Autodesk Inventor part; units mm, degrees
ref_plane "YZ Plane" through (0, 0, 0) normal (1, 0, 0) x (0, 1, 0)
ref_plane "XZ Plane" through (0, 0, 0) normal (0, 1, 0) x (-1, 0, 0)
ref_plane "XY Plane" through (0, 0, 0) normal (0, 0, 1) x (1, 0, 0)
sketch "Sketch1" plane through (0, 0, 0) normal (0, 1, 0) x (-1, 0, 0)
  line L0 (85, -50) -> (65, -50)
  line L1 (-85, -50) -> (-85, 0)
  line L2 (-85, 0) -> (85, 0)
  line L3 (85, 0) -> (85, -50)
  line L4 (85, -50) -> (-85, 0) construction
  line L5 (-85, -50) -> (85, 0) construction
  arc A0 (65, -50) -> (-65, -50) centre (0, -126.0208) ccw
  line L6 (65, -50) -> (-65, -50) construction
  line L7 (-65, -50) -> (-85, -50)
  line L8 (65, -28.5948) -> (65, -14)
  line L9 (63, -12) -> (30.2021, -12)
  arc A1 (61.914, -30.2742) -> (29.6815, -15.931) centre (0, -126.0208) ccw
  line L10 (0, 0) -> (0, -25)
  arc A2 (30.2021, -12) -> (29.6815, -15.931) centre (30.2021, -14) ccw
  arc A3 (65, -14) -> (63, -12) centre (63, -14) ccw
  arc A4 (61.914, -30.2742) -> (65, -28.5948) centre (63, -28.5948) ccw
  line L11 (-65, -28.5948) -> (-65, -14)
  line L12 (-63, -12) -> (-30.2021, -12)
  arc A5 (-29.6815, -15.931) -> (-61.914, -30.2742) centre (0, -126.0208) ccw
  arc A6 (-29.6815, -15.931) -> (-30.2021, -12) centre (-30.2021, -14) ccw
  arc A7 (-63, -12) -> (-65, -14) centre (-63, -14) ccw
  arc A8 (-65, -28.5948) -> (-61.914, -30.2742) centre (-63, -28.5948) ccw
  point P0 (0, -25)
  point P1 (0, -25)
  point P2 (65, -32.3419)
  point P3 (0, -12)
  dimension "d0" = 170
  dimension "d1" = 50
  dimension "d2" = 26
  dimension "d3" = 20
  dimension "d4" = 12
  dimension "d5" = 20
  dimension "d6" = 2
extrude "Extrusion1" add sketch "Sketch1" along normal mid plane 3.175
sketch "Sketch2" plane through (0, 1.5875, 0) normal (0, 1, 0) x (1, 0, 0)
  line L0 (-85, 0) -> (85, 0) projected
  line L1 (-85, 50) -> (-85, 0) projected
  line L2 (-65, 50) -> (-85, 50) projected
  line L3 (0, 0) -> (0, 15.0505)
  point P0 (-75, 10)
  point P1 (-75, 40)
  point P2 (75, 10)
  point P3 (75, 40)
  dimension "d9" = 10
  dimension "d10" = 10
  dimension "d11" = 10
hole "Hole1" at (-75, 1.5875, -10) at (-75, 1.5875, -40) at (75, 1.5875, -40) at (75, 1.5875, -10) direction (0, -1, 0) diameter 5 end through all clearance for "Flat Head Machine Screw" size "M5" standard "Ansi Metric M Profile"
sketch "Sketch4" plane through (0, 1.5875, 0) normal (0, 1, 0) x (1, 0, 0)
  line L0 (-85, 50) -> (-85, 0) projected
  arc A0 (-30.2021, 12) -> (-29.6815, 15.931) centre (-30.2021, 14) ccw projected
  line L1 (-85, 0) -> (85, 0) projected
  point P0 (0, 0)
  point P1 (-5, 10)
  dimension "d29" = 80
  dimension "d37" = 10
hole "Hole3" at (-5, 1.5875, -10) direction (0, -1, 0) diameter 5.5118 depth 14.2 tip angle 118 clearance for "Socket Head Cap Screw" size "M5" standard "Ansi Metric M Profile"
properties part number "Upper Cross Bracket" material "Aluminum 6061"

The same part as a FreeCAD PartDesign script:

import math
import FreeCAD as App
import Part
import Sketcher
from FreeCAD import Vector
Q = App.Units.Quantity

doc = App.newDocument("Part")
body = doc.addObject("PartDesign::Body", "Body")

sketch1 = body.newObject("Sketcher::SketchObject", "Sketch")
sketch1.AttachmentSupport = (doc.getObject("XZ_Plane"), [""])
sketch1.MapMode = "FlatFace"
sketch1.addGeometry([
    Part.LineSegment(Vector(-65, -50, 0), Vector(-85, -50, 0)),
    Part.LineSegment(Vector(-85, -50, 0), Vector(-85, 0, 0)),
    Part.LineSegment(Vector(-85, 0, 0), Vector(85, 0, 0)),
    Part.LineSegment(Vector(85, 0, 0), Vector(85, -50, 0)),
    Part.LineSegment(Vector(85, -50, 0), Vector(65, -50, 0)),
    Part.ArcOfCircle(Part.Circle(Vector(0, -126, 0), Vector(0, 0, 1), 100), math.radians(49), math.radians(131)),
    Part.ArcOfCircle(Part.Circle(Vector(63, -28.6, 0), Vector(0, 0, 1), 2), math.radians(-123), math.radians(0)),
    Part.LineSegment(Vector(65, -28.6, 0), Vector(65, -14, 0)),
    Part.ArcOfCircle(Part.Circle(Vector(63, -14, 0), Vector(0, 0, 1), 2), math.radians(0), math.radians(90)),
    Part.LineSegment(Vector(63, -12, 0), Vector(30.2, -12, 0)),
    Part.ArcOfCircle(Part.Circle(Vector(30.2, -14, 0), Vector(0, 0, 1), 2), math.radians(90), math.radians(255)),
    Part.ArcOfCircle(Part.Circle(Vector(0, -126, 0), Vector(0, 0, 1), 114), math.radians(57.11), math.radians(74.91)),
    Part.LineSegment(Vector(-65, -14, 0), Vector(-65, -28.6, 0)),
    Part.ArcOfCircle(Part.Circle(Vector(-63, -28.6, 0), Vector(0, 0, 1), 2), math.radians(180), math.radians(303)),
    Part.ArcOfCircle(Part.Circle(Vector(0, -126, 0), Vector(0, 0, 1), 114), math.radians(105.09), math.radians(122.89)),
    Part.ArcOfCircle(Part.Circle(Vector(-30.2, -14, 0), Vector(0, 0, 1), 2), math.radians(-75), math.radians(90)),
    Part.LineSegment(Vector(-30.2, -12, 0), Vector(-63, -12, 0)),
    Part.ArcOfCircle(Part.Circle(Vector(-63, -14, 0), Vector(0, 0, 1), 2), math.radians(90), math.radians(180)),
], False)
sketch1.addConstraint([
    Sketcher.Constraint("Coincident", 0, 2, 1, 1),
    Sketcher.Constraint("Coincident", 1, 2, 2, 1),
    Sketcher.Constraint("Coincident", 2, 2, 3, 1),
    Sketcher.Constraint("Coincident", 3, 2, 4, 1),
    Sketcher.Constraint("Coincident", 4, 2, 5, 1),
    Sketcher.Constraint("Coincident", 5, 2, 0, 1),
    Sketcher.Constraint("Tangent", 6, 2, 7, 1),
    Sketcher.Constraint("Tangent", 7, 2, 8, 1),
    Sketcher.Constraint("Tangent", 8, 2, 9, 1),
    Sketcher.Constraint("Tangent", 9, 2, 10, 1),
    Sketcher.Constraint("Tangent", 10, 2, 11, 2),
    Sketcher.Constraint("Tangent", 11, 1, 6, 1),
    Sketcher.Constraint("Tangent", 12, 2, 13, 1),
    Sketcher.Constraint("Tangent", 13, 2, 14, 2),
    Sketcher.Constraint("Tangent", 14, 1, 15, 1),
    Sketcher.Constraint("Tangent", 15, 2, 16, 1),
    Sketcher.Constraint("Tangent", 16, 2, 17, 1),
    Sketcher.Constraint("Tangent", 17, 2, 12, 1),
    Sketcher.Constraint("Horizontal", 0),
    Sketcher.Constraint("Vertical", 1),
    Sketcher.Constraint("Horizontal", 2),
    Sketcher.Constraint("Vertical", 3),
    Sketcher.Constraint("Horizontal", 4),
    Sketcher.Constraint("Vertical", 7),
    Sketcher.Constraint("Horizontal", 9),
    Sketcher.Constraint("Vertical", 12),
    Sketcher.Constraint("Horizontal", 16),
    Sketcher.Constraint("Coincident", 11, 3, 5, 3),
    Sketcher.Constraint("Coincident", 14, 3, 5, 3),
    Sketcher.Constraint("Equal", 6, 8),
    Sketcher.Constraint("Equal", 8, 10),
    Sketcher.Constraint("Equal", 10, 13),
    Sketcher.Constraint("Equal", 11, 14),
    Sketcher.Constraint("Equal", 13, 15),
    Sketcher.Constraint("Equal", 15, 17),
    Sketcher.Constraint("Symmetric", 1, 2, 2, 2, -1, 1),
    Sketcher.Constraint("Symmetric", 6, 3, 13, 3, -2),
    Sketcher.Constraint("Horizontal", 10, 3, 15, 3),
    Sketcher.Constraint("Horizontal", 0, 2, 3, 2),
    Sketcher.Constraint("Vertical", 4, 2, 6, 2),
    Sketcher.Constraint("Radius", 6, Q("2 mm")),
    Sketcher.Constraint("DistanceX", 0, 2, 0, 1, Q("20 mm")),
    Sketcher.Constraint("DistanceX", 2, 1, 2, 2, Q("170 mm")),
    Sketcher.Constraint("DistanceY", 1, 1, 1, 2, Q("50 mm")),
    Sketcher.Constraint("DistanceY", 8, 2, -1, 1, Q("12 mm")),
    Sketcher.Constraint("Radius", 5, Q("100.0208 mm")),
    Sketcher.Constraint("Radius", 11, Q("114.0209 mm")),
])
pad1 = body.newObject("PartDesign::Pad", "Pad")
pad1.Profile = sketch1
pad1.Length = 3.175
pad1.Midplane = True

sketch2 = body.newObject("Sketcher::SketchObject", "Sketch001")
sketch2.AttachmentSupport = (doc.getObject("XZ_Plane"), [""])
sketch2.MapMode = "FlatFace"
sketch2.AttachmentOffset = App.Placement(Vector(0, 0, -1.5875), App.Rotation())
sketch2.addGeometry([
    Part.Circle(Vector(-75, -10, 0), Vector(0, 0, 1), 2.5),
    Part.Circle(Vector(-75, -40, 0), Vector(0, 0, 1), 2.5),
    Part.Circle(Vector(75, -40, 0), Vector(0, 0, 1), 2.5),
    Part.Circle(Vector(75, -10, 0), Vector(0, 0, 1), 2.5),
], False)
sketch2.addConstraint([
    Sketcher.Constraint("Equal", 0, 1),
    Sketcher.Constraint("Equal", 1, 2),
    Sketcher.Constraint("Equal", 2, 3),
    Sketcher.Constraint("Symmetric", 1, 3, 2, 3, -2),
    Sketcher.Constraint("Symmetric", 0, 3, 3, 3, -2),
    Sketcher.Constraint("Vertical", 0, 3, 1, 3),
    Sketcher.Constraint("Diameter", 0, Q("5 mm")),
    Sketcher.Constraint("DistanceX", 0, 3, -1, 1, Q("75 mm")),
    Sketcher.Constraint("DistanceY", 0, 3, -1, 1, Q("10 mm")),
    Sketcher.Constraint("DistanceY", 1, 3, -1, 1, Q("40 mm")),
])
doc.recompute()
hole = body.newObject("PartDesign::Hole", "Hole")
hole.Profile = sketch2
hole.ThreadType = "None"
hole.Diameter = 5
hole.DepthType = "ThroughAll"
hole.Reversed = True

sketch3 = body.newObject("Sketcher::SketchObject", "Sketch002")
sketch3.AttachmentSupport = (doc.getObject("XZ_Plane"), [""])
sketch3.MapMode = "FlatFace"
sketch3.AttachmentOffset = App.Placement(Vector(0, 0, -1.5875), App.Rotation())
sketch3.addGeometry(Part.Circle(Vector(-5, -10, 0), Vector(0, 0, 1), 2.8), False)
sketch3.addConstraint([
    Sketcher.Constraint("DistanceX", 0, 3, -1, 1, Q("5 mm")),
    Sketcher.Constraint("DistanceY", 0, 3, -1, 1, Q("10 mm")),
    Sketcher.Constraint("Diameter", 0, Q("5.5118 mm")),
])
doc.recompute()
hole2 = body.newObject("PartDesign::Hole", "Hole001")
hole2.Profile = sketch3
hole2.ThreadType = "None"
hole2.Diameter = 5.5118
hole2.DepthType = "Dimension"
hole2.Depth = 14.2
hole2.DrillPoint = "Angled"
hole2.DrillPointAngle = 118
hole2.Reversed = True

doc.recompute()
